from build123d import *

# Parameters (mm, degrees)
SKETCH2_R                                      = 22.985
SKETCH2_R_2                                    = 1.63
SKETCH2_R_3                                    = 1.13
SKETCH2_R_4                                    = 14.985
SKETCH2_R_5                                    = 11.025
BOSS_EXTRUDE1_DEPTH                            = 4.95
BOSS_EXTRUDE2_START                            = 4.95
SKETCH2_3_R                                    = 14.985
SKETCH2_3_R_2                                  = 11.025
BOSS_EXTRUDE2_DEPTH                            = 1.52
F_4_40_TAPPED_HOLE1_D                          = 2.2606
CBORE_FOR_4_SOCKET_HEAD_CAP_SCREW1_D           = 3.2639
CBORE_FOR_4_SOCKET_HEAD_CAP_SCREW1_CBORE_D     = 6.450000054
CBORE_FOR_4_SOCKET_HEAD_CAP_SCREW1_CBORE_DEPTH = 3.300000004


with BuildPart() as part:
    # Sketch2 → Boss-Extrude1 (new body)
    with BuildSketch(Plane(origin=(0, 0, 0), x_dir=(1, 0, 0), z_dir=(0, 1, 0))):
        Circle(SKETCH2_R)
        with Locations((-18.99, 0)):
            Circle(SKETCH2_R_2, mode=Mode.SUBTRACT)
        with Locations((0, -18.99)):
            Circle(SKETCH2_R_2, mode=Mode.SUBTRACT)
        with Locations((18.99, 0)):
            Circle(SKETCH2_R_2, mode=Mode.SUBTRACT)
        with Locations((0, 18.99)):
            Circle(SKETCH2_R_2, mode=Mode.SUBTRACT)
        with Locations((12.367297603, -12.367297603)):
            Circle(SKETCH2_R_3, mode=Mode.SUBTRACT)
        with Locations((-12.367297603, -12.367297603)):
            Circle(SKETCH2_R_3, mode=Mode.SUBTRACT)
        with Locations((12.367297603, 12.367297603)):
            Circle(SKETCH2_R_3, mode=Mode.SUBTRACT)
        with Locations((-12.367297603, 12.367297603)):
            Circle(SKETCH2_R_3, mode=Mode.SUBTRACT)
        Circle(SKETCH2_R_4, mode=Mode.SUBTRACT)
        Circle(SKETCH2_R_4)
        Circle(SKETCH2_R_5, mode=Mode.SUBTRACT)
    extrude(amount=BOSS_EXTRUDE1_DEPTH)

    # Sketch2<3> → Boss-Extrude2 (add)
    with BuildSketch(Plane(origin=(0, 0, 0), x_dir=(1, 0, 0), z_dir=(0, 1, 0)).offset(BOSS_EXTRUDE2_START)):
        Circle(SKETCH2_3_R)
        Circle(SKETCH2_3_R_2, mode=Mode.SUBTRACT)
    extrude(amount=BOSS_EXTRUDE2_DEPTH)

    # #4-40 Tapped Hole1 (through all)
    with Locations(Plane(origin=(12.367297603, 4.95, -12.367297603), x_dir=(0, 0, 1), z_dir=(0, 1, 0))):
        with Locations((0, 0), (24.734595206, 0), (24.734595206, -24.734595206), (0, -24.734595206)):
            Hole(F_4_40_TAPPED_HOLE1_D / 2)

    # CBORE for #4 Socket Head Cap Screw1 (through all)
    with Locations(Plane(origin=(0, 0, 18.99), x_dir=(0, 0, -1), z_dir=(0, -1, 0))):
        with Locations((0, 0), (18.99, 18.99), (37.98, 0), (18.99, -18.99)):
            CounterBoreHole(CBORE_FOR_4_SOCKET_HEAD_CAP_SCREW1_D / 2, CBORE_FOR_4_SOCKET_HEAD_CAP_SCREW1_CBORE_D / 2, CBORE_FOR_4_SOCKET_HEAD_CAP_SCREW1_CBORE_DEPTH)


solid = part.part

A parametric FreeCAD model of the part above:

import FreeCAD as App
import Part
import Sketcher
Q = App.Units.Quantity

doc = App.newDocument("Part")
body = doc.addObject("PartDesign::Body", "Body")

sketch1 = body.newObject("Sketcher::SketchObject", "Sketch")
sketch1.AttachmentSupport = (doc.getObject("XZ_Plane"), [""])
sketch1.MapMode = "FlatFace"
sketch1.addGeometry([
    Part.Circle(App.Vector(0, 0, 0), App.Vector(0, 0, 1), 23),
    Part.Circle(App.Vector(-12.4, 12.4, 0), App.Vector(0, 0, 1), 1.1),
    Part.Circle(App.Vector(0, 19, 0), App.Vector(0, 0, 1), 1.6),
    Part.Circle(App.Vector(12.4, 12.4, 0), App.Vector(0, 0, 1), 1.1),
    Part.Circle(App.Vector(-19, 0, 0), App.Vector(0, 0, 1), 1.6),
    Part.Circle(App.Vector(-12.4, -12.4, 0), App.Vector(0, 0, 1), 1.1),
    Part.Circle(App.Vector(0, 0, 0), App.Vector(0, 0, 1), 11),
    Part.Circle(App.Vector(19, 0, 0), App.Vector(0, 0, 1), 1.6),
    Part.Circle(App.Vector(0, -19, 0), App.Vector(0, 0, 1), 1.6),
    Part.Circle(App.Vector(12.4, -12.4, 0), App.Vector(0, 0, 1), 1.1),
], False)
sketch1.addConstraint([
    Sketcher.Constraint("Coincident", 0, 3, -1, 1),
    Sketcher.Constraint("Coincident", 6, 3, -1, 1),
    Sketcher.Constraint("Equal", 1, 3),
    Sketcher.Constraint("Equal", 2, 4),
    Sketcher.Constraint("Equal", 3, 5),
    Sketcher.Constraint("Equal", 4, 7),
    Sketcher.Constraint("Equal", 7, 8),
    Sketcher.Constraint("Equal", 5, 9),
    Sketcher.Constraint("Symmetric", 3, 3, 5, 3, -1, 1),
    Sketcher.Constraint("Symmetric", 4, 3, 7, 3, -1, 1),
    Sketcher.Constraint("Symmetric", 2, 3, 8, 3, -1, 1),
    Sketcher.Constraint("Symmetric", 1, 3, 9, 3, -1, 1),
    Sketcher.Constraint("Symmetric", 1, 3, 3, 3, -2),
    Sketcher.Constraint("PointOnObject", 2, 3, -2),
    Sketcher.Constraint("PointOnObject", 4, 3, -1),
    Sketcher.Constraint("Diameter", 0, 45.97),
    Sketcher.Constraint("Diameter", 1, 2.26),
    Sketcher.Constraint("Diameter", 2, 3.26),
    Sketcher.Constraint("Diameter", 6, 22.05),
    Sketcher.Constraint("DistanceY", -1, 1, 2, 3, 18.99),
    Sketcher.Constraint("DistanceX", 4, 3, -1, 1, 18.99),
    Sketcher.Constraint("DistanceX", 1, 3, -1, 1, 12.367298),
    Sketcher.Constraint("DistanceY", -1, 1, 1, 3, 12.367298),
])
pad1 = body.newObject("PartDesign::Pad", "Pad")
pad1.Profile = sketch1
pad1.Length = 4.95
pad1.Reversed = True

sketch2 = body.newObject("Sketcher::SketchObject", "Sketch001")
sketch2.AttachmentSupport = (doc.getObject("XZ_Plane"), [""])
sketch2.MapMode = "FlatFace"
sketch2.AttachmentOffset = App.Placement(App.Vector(0, 0, -4.95), App.Rotation())
sketch2.addGeometry([
    Part.Circle(App.Vector(0, 0, 0), App.Vector(0, 0, 1), 15),
    Part.Circle(App.Vector(0, 0, 0), App.Vector(0, 0, 1), 11),
], False)
sketch2.addConstraint([
    Sketcher.Constraint("Coincident", 0, 3, -1, 1),
    Sketcher.Constraint("Coincident", 1, 3, -1, 1),
    Sketcher.Constraint("Diameter", 0, 29.97),
    Sketcher.Constraint("Diameter", 1, 22.05),
])
pad2 = body.newObject("PartDesign::Pad", "Pad001")
pad2.Profile = sketch2
pad2.Length = 1.52
pad2.Reversed = True

sketch3 = body.newObject("Sketcher::SketchObject", "Sketch002")
sketch3.AttachmentSupport = (doc.getObject("XZ_Plane"), [""])
sketch3.MapMode = "FlatFace"
sketch3.AttachmentOffset = App.Placement(App.Vector(0, 0, -4.95), App.Rotation())
sketch3.addGeometry([
    Part.Circle(App.Vector(12.4, -12.4, 0), App.Vector(0, 0, 1), 1.1),
    Part.Circle(App.Vector(12.4, 12.4, 0), App.Vector(0, 0, 1), 1.1),
    Part.Circle(App.Vector(-12.4, 12.4, 0), App.Vector(0, 0, 1), 1.1),
    Part.Circle(App.Vector(-12.4, -12.4, 0), App.Vector(0, 0, 1), 1.1),
], False)
sketch3.addConstraint([
    Sketcher.Constraint("Equal", 0, 1),
    Sketcher.Constraint("Equal", 1, 2),
    Sketcher.Constraint("Equal", 2, 3),
    Sketcher.Constraint("Symmetric", 0, 3, 2, 3, -1, 1),
    Sketcher.Constraint("Symmetric", 1, 3, 3, 3, -1, 1),
    Sketcher.Constraint("Symmetric", 1, 3, 2, 3, -2),
    Sketcher.Constraint("Diameter", 0, Q("0.089 in")),
    Sketcher.Constraint("DistanceX", -1, 1, 0, 3, 12.367298),
    Sketcher.Constraint("DistanceY", 0, 3, -1, 1, 12.367298),
])
doc.recompute()
hole = body.newObject("PartDesign::Hole", "Hole")
hole.Profile = sketch3
hole.ThreadType = "None"
hole.Diameter = Q("0.089 in")
hole.DepthType = "ThroughAll"
hole.Reversed = True

sketch4 = body.newObject("Sketcher::SketchObject", "Sketch003")
sketch4.AttachmentSupport = (doc.getObject("XZ_Plane"), [""])
sketch4.MapMode = "FlatFace"
sketch4.addGeometry([
    Part.Circle(App.Vector(0, 19, 0), App.Vector(0, 0, 1), 1.6),
    Part.Circle(App.Vector(19, 0, 0), App.Vector(0, 0, 1), 1.6),
    Part.Circle(App.Vector(0, -19, 0), App.Vector(0, 0, 1), 1.6),
    Part.Circle(App.Vector(-19, 0, 0), App.Vector(0, 0, 1), 1.6),
], False)
sketch4.addConstraint([
    Sketcher.Constraint("Equal", 0, 1),
    Sketcher.Constraint("Equal", 1, 2),
    Sketcher.Constraint("Equal", 2, 3),
    Sketcher.Constraint("Symmetric", 0, 3, 2, 3, -1, 1),
    Sketcher.Constraint("Symmetric", 1, 3, 3, 3, -1, 1),
    Sketcher.Constraint("PointOnObject", 0, 3, -2),
    Sketcher.Constraint("PointOnObject", 1, 3, -1),
    Sketcher.Constraint("Diameter", 0, Q("0.1285 in")),
    Sketcher.Constraint("DistanceY", -1, 1, 0, 3, 18.99),
    Sketcher.Constraint("DistanceX", -1, 1, 1, 3, 18.99),
])
doc.recompute()
hole2 = body.newObject("PartDesign::Hole", "Hole001")
hole2.Profile = sketch4
hole2.ThreadType = "None"
hole2.Diameter = Q("0.1285 in")
hole2.DepthType = "ThroughAll"
hole2.HoleCutType = "Counterbore"
hole2.HoleCutDiameter = 6.45
hole2.HoleCutDepth = 3.3

doc.recompute()
